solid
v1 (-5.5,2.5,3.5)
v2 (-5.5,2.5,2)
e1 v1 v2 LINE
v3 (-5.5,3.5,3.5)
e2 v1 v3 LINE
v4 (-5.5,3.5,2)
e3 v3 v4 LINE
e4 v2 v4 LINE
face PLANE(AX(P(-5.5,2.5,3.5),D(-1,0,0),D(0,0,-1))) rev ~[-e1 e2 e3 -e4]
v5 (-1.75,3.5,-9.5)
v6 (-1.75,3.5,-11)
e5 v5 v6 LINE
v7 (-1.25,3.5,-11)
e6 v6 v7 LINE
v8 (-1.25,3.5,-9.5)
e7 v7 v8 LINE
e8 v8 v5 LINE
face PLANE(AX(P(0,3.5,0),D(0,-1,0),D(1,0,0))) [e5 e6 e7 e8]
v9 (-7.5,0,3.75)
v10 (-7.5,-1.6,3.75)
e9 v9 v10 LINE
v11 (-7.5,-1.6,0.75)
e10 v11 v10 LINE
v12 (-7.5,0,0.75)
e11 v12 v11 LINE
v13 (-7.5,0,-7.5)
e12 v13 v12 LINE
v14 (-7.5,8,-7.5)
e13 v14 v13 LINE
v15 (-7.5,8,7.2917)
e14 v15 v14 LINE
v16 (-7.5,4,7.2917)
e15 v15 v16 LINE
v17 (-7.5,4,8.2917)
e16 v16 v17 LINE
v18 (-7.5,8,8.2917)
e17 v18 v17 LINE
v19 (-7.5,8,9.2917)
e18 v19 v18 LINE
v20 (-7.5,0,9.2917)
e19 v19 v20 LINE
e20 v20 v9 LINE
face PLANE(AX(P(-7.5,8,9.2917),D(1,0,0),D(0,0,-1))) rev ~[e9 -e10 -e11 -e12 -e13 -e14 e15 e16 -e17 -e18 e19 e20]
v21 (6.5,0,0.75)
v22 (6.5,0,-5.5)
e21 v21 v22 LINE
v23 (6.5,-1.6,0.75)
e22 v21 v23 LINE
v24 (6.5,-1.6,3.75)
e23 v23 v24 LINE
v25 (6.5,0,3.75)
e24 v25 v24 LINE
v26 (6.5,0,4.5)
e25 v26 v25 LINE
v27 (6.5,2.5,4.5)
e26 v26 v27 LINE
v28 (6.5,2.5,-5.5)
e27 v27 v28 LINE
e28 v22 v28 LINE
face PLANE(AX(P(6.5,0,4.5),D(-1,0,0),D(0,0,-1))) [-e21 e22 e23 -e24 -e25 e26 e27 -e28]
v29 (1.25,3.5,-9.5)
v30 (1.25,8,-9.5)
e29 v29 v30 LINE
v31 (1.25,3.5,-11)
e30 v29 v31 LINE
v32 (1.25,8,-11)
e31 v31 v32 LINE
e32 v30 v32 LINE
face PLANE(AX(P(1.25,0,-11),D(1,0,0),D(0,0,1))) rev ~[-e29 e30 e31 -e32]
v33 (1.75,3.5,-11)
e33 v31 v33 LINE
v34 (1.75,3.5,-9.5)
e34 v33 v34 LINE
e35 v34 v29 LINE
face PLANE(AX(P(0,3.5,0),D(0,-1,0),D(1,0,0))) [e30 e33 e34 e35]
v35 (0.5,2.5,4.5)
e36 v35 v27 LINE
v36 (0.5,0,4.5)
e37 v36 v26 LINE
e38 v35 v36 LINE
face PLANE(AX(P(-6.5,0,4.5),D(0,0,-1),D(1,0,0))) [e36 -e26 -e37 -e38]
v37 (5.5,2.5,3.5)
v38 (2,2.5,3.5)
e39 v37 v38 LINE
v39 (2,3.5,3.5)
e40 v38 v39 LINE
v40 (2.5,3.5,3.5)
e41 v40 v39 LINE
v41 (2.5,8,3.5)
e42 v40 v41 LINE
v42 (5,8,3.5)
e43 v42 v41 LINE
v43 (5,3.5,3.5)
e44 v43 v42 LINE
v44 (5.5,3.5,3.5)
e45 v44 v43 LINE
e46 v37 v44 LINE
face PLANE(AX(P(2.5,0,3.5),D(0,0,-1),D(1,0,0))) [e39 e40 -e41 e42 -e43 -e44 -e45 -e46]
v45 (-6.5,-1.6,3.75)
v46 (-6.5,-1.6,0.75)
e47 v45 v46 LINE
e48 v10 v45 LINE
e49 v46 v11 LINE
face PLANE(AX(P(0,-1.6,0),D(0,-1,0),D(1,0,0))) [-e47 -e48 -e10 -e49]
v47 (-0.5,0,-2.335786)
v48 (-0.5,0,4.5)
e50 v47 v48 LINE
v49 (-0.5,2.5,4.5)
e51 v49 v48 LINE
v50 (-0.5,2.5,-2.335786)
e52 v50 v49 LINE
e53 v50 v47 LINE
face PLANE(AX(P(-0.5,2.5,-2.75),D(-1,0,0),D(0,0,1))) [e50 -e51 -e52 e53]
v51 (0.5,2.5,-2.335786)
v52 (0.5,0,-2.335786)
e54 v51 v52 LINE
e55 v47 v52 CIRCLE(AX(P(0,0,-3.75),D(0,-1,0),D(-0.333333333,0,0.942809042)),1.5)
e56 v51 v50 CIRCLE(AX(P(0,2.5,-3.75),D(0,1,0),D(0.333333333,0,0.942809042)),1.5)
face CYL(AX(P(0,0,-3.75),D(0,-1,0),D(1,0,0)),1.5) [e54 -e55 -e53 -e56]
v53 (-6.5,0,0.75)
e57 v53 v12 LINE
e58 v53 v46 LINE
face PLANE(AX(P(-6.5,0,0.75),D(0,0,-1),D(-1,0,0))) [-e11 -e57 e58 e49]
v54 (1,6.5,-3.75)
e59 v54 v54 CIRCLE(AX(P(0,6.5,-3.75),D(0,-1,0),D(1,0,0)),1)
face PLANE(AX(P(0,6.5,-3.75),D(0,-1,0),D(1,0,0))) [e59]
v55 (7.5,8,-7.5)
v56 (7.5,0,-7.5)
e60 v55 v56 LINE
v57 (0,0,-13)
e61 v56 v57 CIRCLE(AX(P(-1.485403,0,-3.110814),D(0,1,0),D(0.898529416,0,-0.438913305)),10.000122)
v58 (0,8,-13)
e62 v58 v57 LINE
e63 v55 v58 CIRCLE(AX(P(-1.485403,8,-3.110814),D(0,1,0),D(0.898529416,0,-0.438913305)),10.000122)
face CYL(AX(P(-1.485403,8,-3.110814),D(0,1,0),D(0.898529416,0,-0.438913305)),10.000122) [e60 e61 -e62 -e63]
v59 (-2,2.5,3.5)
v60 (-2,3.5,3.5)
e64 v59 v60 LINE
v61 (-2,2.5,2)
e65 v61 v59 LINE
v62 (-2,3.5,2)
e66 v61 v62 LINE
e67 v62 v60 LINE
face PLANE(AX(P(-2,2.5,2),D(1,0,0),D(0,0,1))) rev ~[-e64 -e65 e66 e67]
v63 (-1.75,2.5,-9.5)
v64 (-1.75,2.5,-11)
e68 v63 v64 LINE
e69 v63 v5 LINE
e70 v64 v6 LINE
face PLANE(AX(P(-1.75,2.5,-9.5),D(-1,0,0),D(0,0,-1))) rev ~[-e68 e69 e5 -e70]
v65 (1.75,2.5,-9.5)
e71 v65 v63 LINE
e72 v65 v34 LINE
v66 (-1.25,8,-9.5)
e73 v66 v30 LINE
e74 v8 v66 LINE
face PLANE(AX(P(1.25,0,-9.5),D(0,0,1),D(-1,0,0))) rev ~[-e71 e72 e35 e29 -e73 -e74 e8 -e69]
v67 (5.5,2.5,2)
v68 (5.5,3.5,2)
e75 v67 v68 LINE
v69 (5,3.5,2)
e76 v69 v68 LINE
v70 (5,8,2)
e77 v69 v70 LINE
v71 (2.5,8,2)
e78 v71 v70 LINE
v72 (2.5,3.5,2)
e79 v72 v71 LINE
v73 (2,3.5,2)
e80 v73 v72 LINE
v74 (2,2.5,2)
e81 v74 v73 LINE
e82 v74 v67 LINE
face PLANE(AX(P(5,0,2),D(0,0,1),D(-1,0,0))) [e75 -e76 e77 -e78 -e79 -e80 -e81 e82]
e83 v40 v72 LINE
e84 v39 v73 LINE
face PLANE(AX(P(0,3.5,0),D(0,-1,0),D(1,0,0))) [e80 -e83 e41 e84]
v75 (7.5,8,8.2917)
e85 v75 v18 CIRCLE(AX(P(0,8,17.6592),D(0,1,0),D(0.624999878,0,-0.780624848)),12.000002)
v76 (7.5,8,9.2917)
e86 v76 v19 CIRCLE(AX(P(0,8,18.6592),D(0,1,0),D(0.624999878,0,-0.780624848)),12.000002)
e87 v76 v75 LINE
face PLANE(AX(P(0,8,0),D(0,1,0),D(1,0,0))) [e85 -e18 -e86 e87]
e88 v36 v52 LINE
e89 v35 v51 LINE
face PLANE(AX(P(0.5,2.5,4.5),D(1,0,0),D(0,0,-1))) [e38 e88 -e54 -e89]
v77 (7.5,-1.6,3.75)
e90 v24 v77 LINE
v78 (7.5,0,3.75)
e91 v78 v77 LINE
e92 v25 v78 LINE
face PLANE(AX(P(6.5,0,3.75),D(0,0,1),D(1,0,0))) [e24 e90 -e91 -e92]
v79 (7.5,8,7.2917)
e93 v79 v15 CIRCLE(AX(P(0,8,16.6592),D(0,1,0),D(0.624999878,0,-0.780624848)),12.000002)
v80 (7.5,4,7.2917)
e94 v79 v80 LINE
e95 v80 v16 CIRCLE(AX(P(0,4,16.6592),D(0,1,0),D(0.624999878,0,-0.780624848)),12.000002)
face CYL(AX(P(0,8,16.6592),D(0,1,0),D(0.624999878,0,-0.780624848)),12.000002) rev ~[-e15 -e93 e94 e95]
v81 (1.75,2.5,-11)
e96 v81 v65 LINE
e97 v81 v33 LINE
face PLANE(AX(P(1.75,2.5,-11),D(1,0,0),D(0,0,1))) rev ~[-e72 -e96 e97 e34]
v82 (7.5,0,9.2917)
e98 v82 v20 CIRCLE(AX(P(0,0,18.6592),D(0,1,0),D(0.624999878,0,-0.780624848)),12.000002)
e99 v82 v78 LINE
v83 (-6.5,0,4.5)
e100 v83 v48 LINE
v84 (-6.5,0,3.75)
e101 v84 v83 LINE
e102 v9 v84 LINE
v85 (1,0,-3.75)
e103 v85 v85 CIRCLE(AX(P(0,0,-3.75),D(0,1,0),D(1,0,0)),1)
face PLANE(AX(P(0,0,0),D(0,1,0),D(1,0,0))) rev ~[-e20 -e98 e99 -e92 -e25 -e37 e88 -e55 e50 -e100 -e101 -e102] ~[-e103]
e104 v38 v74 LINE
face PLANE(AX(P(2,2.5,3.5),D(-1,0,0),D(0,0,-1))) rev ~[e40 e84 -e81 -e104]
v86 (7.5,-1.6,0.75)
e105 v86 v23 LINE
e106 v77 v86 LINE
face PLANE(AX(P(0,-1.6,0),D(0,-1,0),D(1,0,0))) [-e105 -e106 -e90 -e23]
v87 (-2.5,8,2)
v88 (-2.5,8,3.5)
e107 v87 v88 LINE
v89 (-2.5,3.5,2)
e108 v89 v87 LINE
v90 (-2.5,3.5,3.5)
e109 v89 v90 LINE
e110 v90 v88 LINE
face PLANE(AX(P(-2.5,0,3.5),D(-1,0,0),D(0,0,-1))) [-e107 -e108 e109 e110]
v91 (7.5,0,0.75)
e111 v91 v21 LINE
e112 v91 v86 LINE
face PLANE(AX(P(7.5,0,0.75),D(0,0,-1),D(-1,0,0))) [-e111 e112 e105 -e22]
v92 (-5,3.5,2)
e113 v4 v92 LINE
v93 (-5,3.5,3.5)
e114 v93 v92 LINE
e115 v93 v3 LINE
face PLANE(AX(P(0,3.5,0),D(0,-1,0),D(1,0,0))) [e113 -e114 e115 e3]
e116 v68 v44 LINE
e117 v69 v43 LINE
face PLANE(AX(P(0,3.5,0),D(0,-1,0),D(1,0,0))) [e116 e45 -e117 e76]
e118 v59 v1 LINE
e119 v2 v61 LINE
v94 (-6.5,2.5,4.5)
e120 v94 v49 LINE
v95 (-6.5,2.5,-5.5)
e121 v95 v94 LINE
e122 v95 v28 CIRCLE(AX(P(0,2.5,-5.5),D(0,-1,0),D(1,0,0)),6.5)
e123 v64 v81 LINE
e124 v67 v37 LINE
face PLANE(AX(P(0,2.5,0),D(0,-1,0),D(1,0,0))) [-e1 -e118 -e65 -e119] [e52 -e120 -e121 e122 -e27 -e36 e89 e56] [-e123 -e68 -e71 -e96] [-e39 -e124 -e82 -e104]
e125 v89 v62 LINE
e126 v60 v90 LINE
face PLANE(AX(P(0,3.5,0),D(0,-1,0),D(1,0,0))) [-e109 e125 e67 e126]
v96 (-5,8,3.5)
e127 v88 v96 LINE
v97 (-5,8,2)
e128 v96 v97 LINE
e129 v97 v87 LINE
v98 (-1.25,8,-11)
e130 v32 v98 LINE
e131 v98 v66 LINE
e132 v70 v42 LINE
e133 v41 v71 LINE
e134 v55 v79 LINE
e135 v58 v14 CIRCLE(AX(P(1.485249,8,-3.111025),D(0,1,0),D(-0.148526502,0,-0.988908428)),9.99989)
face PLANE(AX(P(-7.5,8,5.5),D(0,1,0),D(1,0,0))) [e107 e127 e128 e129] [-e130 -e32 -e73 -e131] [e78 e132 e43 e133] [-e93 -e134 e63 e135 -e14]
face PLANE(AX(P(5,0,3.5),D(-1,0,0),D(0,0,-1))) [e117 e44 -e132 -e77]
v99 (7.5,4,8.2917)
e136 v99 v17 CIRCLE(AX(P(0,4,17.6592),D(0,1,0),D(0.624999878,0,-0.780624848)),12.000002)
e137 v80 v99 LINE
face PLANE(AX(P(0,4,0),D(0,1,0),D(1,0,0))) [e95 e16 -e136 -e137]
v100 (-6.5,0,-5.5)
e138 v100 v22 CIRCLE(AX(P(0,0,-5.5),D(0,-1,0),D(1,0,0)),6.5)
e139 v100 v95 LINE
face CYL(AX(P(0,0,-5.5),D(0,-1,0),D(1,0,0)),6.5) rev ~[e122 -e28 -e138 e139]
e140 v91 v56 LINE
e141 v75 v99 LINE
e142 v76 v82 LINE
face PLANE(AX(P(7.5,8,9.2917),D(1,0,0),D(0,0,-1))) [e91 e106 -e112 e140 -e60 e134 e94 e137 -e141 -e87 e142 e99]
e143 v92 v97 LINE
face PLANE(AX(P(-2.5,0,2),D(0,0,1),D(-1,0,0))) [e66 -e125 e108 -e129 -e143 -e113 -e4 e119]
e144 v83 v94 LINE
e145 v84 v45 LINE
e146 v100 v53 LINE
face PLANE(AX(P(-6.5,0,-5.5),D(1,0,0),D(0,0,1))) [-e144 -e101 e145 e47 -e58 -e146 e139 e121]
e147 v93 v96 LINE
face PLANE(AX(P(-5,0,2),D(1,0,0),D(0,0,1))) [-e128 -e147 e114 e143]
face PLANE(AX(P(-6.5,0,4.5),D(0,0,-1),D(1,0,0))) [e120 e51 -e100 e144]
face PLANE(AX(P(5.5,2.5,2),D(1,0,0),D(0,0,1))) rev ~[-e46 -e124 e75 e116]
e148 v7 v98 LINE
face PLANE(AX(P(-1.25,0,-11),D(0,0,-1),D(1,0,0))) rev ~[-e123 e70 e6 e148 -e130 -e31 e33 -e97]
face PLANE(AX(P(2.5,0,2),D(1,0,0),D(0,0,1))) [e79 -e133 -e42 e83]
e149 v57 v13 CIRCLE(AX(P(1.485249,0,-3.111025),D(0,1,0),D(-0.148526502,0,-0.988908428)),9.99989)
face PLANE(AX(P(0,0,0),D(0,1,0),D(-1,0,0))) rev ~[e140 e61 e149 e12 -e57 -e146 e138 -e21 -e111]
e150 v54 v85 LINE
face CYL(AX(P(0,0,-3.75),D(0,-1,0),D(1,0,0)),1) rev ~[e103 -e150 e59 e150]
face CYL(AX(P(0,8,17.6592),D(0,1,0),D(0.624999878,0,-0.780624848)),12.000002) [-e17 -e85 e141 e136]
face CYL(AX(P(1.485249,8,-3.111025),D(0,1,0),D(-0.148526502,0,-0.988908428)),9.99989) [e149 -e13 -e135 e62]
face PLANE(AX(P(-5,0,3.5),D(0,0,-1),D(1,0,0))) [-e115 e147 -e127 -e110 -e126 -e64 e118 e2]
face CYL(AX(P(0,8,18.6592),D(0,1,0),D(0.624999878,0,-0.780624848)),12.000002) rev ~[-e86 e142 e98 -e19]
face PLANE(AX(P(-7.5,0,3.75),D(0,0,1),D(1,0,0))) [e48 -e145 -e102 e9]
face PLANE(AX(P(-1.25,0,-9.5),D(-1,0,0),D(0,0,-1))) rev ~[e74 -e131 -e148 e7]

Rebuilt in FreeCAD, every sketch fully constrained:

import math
import FreeCAD as App
import Part
import Sketcher

V = App.Vector
Q = App.Units.Quantity

doc = App.newDocument("Part")
body = doc.addObject("PartDesign::Body", "Body")

# Sketch on XZ plane
sketch1 = body.newObject("Sketcher::SketchObject", "Sketch")
sketch1.AttachmentSupport = (doc.getObject("XZ_Plane"), [""])
sketch1.MapMode = "FlatFace"
sketch1.addGeometry([
    Part.LineSegment(V(-8, 6, 0), V(8, 6, 0)),
    Part.LineSegment(V(8, 6, 0), V(8, -6, 0)),
    Part.ArcOfCircle(Part.Circle(V(0, -6, 0), V(0, 0, 1), 8), math.radians(180), math.radians(360)),
    Part.LineSegment(V(-8, -6, 0), V(-8, 6, 0)),
], False)
sketch1.addConstraint([
    Sketcher.Constraint("Coincident", 0, 2, 1, 1),
    Sketcher.Constraint("Tangent", 1, 2, 2, 2),
    Sketcher.Constraint("Tangent", 2, 1, 3, 1),
    Sketcher.Constraint("Coincident", 3, 2, 0, 1),
    Sketcher.Constraint("Horizontal", 0),
    Sketcher.Constraint("Vertical", 1),
    Sketcher.Constraint("Vertical", 3),
    Sketcher.Constraint("Symmetric", 0, 2, 2, 1, -1, 1),
    Sketcher.Constraint("Radius", 2, Q("7.5 mm")),
    Sketcher.Constraint("DistanceY", 1, 2, 1, 1, Q("11 mm")),
])
pad1 = body.newObject("PartDesign::Pad", "Pad")
pad1.Profile = sketch1
pad1.Length = 8
pad1.Reversed = True

# Sketch on XZ plane
sketch2 = body.newObject("Sketcher::SketchObject", "Sketch001")
sketch2.AttachmentSupport = (doc.getObject("XZ_Plane"), [""])
sketch2.MapMode = "FlatFace"
sketch2.addGeometry([
    Part.LineSegment(V(-7.5, 3.8, 0), V(-7.5, 0.8, 0)),  # 0
    Part.LineSegment(V(-7.5, 0.8, 0), V(-6.5, 0.8, 0)),  # 1
    Part.LineSegment(V(-6.5, 0.8, 0), V(-6.5, 3.8, 0)),  # 2
    Part.LineSegment(V(-6.5, 3.8, 0), V(-7.5, 3.8, 0)),  # 3
    Part.LineSegment(V(7.5, 0.8, 0), V(7.5, 3.8, 0)),  # 4
    Part.LineSegment(V(7.5, 3.8, 0), V(6.5, 3.8, 0)),  # 5
    Part.LineSegment(V(6.5, 3.8, 0), V(6.5, 0.8, 0)),  # 6
    Part.LineSegment(V(6.5, 0.8, 0), V(7.5, 0.8, 0)),  # 7
], False)
sketch2.addConstraint([
    Sketcher.Constraint("Coincident", 0, 2, 1, 1),
    Sketcher.Constraint("Coincident", 1, 2, 2, 1),
    Sketcher.Constraint("Coincident", 2, 2, 3, 1),
    Sketcher.Constraint("Coincident", 3, 2, 0, 1),
    Sketcher.Constraint("Coincident", 4, 2, 5, 1),
    Sketcher.Constraint("Coincident", 5, 2, 6, 1),
    Sketcher.Constraint("Coincident", 6, 2, 7, 1),
    Sketcher.Constraint("Coincident", 7, 2, 4, 1),
    Sketcher.Constraint("Vertical", 0),
    Sketcher.Constraint("Horizontal", 1),
    Sketcher.Constraint("Vertical", 2),
    Sketcher.Constraint("Horizontal", 3),
    Sketcher.Constraint("Vertical", 4),
    Sketcher.Constraint("Horizontal", 5),
    Sketcher.Constraint("Vertical", 6),
    Sketcher.Constraint("Horizontal", 7),
    Sketcher.Constraint("Symmetric", 3, 2, 4, 2, -2),
    Sketcher.Constraint("Symmetric", 1, 2, 6, 2, -2),
    Sketcher.Constraint("DistanceX", 1, 1, 1, 2, Q("1 mm")),
    Sketcher.Constraint("DistanceY", 0, 2, 0, 1, Q("3 mm")),
    Sketcher.Constraint("DistanceX", 3, 2, 4, 2, Q("15 mm")),
    Sketcher.Constraint("DistanceY", -1, 1, 0, 2, Q("0.75 mm")),
])
pad2 = body.newObject("PartDesign::Pad", "Pad001")
pad2.Profile = sketch2
pad2.Length = 1.6

# Sketch on XZ plane
sketch3 = body.newObject("Sketcher::SketchObject", "Sketch002")
sketch3.AttachmentSupport = (doc.getObject("XZ_Plane"), [""])
sketch3.MapMode = "FlatFace"
sketch3.addGeometry([
    Part.Circle(V(0, -3.8, 0), V(0, 0, 1), 1),  # 0
    Part.LineSegment(V(6.5, 4.5, 0), V(-6.5, 4.5, 0)),  # 1
    Part.LineSegment(V(-6.5, 4.5, 0), V(-6.5, -5.5, 0)),  # 2
    Part.ArcOfCircle(Part.Circle(V(0, -5.5, 0), V(0, 0, 1), 6.5), math.radians(180), math.radians(360)),  # 3
    Part.LineSegment(V(6.5, -5.5, 0), V(6.5, 4.5, 0)),  # 4
    Part.Circle(V(0, -3.8, 0), V(0, 0, 1), 1.5),  # 5
], False)
sketch3.addConstraint([
    Sketcher.Constraint("Coincident", 1, 2, 2, 1),
    Sketcher.Constraint("Tangent", 2, 2, 3, 1),
    Sketcher.Constraint("Tangent", 3, 2, 4, 1),
    Sketcher.Constraint("Coincident", 4, 2, 1, 1),
    Sketcher.Constraint("Horizontal", 1),
    Sketcher.Constraint("Vertical", 2),
    Sketcher.Constraint("Vertical", 4),
    Sketcher.Constraint("Coincident", 5, 3, 0, 3),
    Sketcher.Constraint("PointOnObject", 0, 3, -2),
    Sketcher.Constraint("PointOnObject", 3, 3, -2),
    Sketcher.Constraint("Diameter", 0, Q("2 mm")),
    Sketcher.Constraint("Diameter", 5, Q("3 mm")),
    Sketcher.Constraint("Radius", 3, Q("6.5 mm")),
    Sketcher.Constraint("DistanceY", 2, 2, 2, 1, Q("10 mm")),
    Sketcher.Constraint("DistanceY", 0, 3, -1, 1, Q("3.75 mm")),
    Sketcher.Constraint("DistanceY", 3, 3, -1, 1, Q("5.5 mm")),
])
pocket1 = body.newObject("PartDesign::Pocket", "Pocket")
pocket1.Profile = sketch3
pocket1.Length = 2.5

# Sketch on XZ plane
sketch4 = body.newObject("Sketcher::SketchObject", "Sketch003")
sketch4.AttachmentSupport = (doc.getObject("XZ_Plane"), [""])
sketch4.MapMode = "FlatFace"
sketch4.addGeometry([
    Part.LineSegment(V(-2.5, 3.5, 0), V(-5, 3.5, 0)),  # 0
    Part.LineSegment(V(-5, 3.5, 0), V(-5, 2, 0)),  # 1
    Part.LineSegment(V(-5, 2, 0), V(-2.5, 2, 0)),  # 2
    Part.LineSegment(V(-2.5, 2, 0), V(-2.5, 3.5, 0)),  # 3
    Part.LineSegment(V(5, 3.5, 0), V(2.5, 3.5, 0)),  # 4
    Part.LineSegment(V(2.5, 3.5, 0), V(2.5, 2, 0)),  # 5
    Part.LineSegment(V(2.5, 2, 0), V(5, 2, 0)),  # 6
    Part.LineSegment(V(5, 2, 0), V(5, 3.5, 0)),  # 7
    Part.LineSegment(V(-1.2, -9.5, 0), V(-1.2, -11, 0)),  # 8
    Part.LineSegment(V(-1.2, -11, 0), V(1.2, -11, 0)),  # 9
    Part.LineSegment(V(1.2, -11, 0), V(1.2, -9.5, 0)),  # 10
    Part.LineSegment(V(1.2, -9.5, 0), V(-1.2, -9.5, 0)),  # 11
], False)
sketch4.addConstraint([
    Sketcher.Constraint("Coincident", 0, 2, 1, 1),
    Sketcher.Constraint("Coincident", 1, 2, 2, 1),
    Sketcher.Constraint("Coincident", 2, 2, 3, 1),
    Sketcher.Constraint("Coincident", 3, 2, 0, 1),
    Sketcher.Constraint("Coincident", 4, 2, 5, 1),
    Sketcher.Constraint("Coincident", 5, 2, 6, 1),
    Sketcher.Constraint("Coincident", 6, 2, 7, 1),
    Sketcher.Constraint("Coincident", 7, 2, 4, 1),
    Sketcher.Constraint("Coincident", 8, 2, 9, 1),
    Sketcher.Constraint("Coincident", 9, 2, 10, 1),
    Sketcher.Constraint("Coincident", 10, 2, 11, 1),
    Sketcher.Constraint("Coincident", 11, 2, 8, 1),
    Sketcher.Constraint("Horizontal", 0),
    Sketcher.Constraint("Vertical", 1),
    Sketcher.Constraint("Horizontal", 2),
    Sketcher.Constraint("Vertical", 3),
    Sketcher.Constraint("Horizontal", 4),
    Sketcher.Constraint("Vertical", 5),
    Sketcher.Constraint("Horizontal", 6),
    Sketcher.Constraint("Vertical", 7),
    Sketcher.Constraint("Vertical", 8),
    Sketcher.Constraint("Horizontal", 9),
    Sketcher.Constraint("Vertical", 10),
    Sketcher.Constraint("Horizontal", 11),
    Sketcher.Constraint("Symmetric", 3, 2, 4, 2, -2),
    Sketcher.Constraint("Symmetric", 1, 2, 6, 2, -2),
    Sketcher.Constraint("Equal", 6, 9),
    Sketcher.Constraint("Equal", 7, 8),
    Sketcher.Constraint("DistanceX", 0, 2, 0, 1, Q("2.5 mm")),
    Sketcher.Constraint("DistanceY", 1, 2, 1, 1, Q("1.5 mm")),
    Sketcher.Constraint("DistanceY", 8, 2, 2, 2, Q("13 mm")),
    Sketcher.Constraint("DistanceX", 2, 2, -1, 1, Q("2.5 mm")),
    Sketcher.Constraint("DistanceX", 1, 2, 8, 2, Q("3.75 mm")),
    Sketcher.Constraint("DistanceY", -1, 1, 1, 2, Q("2 mm")),
])
pocket2 = body.newObject("PartDesign::Pocket", "Pocket001")
pocket2.Profile = sketch4
pocket2.Length = 10

# Sketch on XZ plane
sketch5 = body.newObject("Sketcher::SketchObject", "Sketch004")
sketch5.AttachmentSupport = (doc.getObject("XZ_Plane"), [""])
sketch5.MapMode = "FlatFace"
sketch5.AttachmentOffset = App.Placement(V(0, 0, -2.5), App.Rotation())
sketch5.addGeometry([
    Part.LineSegment(V(5.5, 2, 0), V(5.5, 3.5, 0)),  # 0
    Part.LineSegment(V(5.5, 3.5, 0), V(2, 3.5, 0)),  # 1
    Part.LineSegment(V(2, 3.5, 0), V(2, 2, 0)),  # 2
    Part.LineSegment(V(2, 2, 0), V(5.5, 2, 0)),  # 3
    Part.LineSegment(V(1.8, -11, 0), V(1.8, -9.5, 0)),  # 4
    Part.LineSegment(V(1.8, -9.5, 0), V(-1.8, -9.5, 0)),  # 5
    Part.LineSegment(V(-1.8, -9.5, 0), V(-1.8, -11, 0)),  # 6
    Part.LineSegment(V(-1.8, -11, 0), V(1.8, -11, 0)),  # 7
    Part.LineSegment(V(-2, 2, 0), V(-2, 3.5, 0)),  # 8
    Part.LineSegment(V(-2, 3.5, 0), V(-5.5, 3.5, 0)),  # 9
    Part.LineSegment(V(-5.5, 3.5, 0), V(-5.5, 2, 0)),  # 10
    Part.LineSegment(V(-5.5, 2, 0), V(-2, 2, 0)),  # 11
], False)
sketch5.addConstraint([
    Sketcher.Constraint("Coincident", 0, 2, 1, 1),
    Sketcher.Constraint("Coincident", 1, 2, 2, 1),
    Sketcher.Constraint("Coincident", 2, 2, 3, 1),
    Sketcher.Constraint("Coincident", 3, 2, 0, 1),
    Sketcher.Constraint("Coincident", 4, 2, 5, 1),
    Sketcher.Constraint("Coincident", 5, 2, 6, 1),
    Sketcher.Constraint("Coincident", 6, 2, 7, 1),
    Sketcher.Constraint("Coincident", 7, 2, 4, 1),
    Sketcher.Constraint("Coincident", 8, 2, 9, 1),
    Sketcher.Constraint("Coincident", 9, 2, 10, 1),
    Sketcher.Constraint("Coincident", 10, 2, 11, 1),
    Sketcher.Constraint("Coincident", 11, 2, 8, 1),
    Sketcher.Constraint("Vertical", 0),
    Sketcher.Constraint("Horizontal", 1),
    Sketcher.Constraint("Vertical", 2),
    Sketcher.Constraint("Horizontal", 3),
    Sketcher.Constraint("Vertical", 4),
    Sketcher.Constraint("Horizontal", 5),
    Sketcher.Constraint("Vertical", 6),
    Sketcher.Constraint("Horizontal", 7),
    Sketcher.Constraint("Vertical", 8),
    Sketcher.Constraint("Horizontal", 9),
    Sketcher.Constraint("Vertical", 10),
    Sketcher.Constraint("Horizontal", 11),
    Sketcher.Constraint("Symmetric", 1, 2, 8, 2, -2),
    Sketcher.Constraint("Symmetric", 3, 2, 10, 2, -2),
    Sketcher.Constraint("Equal", 3, 5),
    Sketcher.Constraint("Equal", 2, 4),
    Sketcher.Constraint("DistanceX", 1, 2, 1, 1, Q("3.5 mm")),
    Sketcher.Constraint("DistanceY", 0, 1, 0, 2, Q("1.5 mm")),
    Sketcher.Constraint("DistanceX", -1, 1, 1, 2, Q("2 mm")),
    Sketcher.Constraint("DistanceY", -1, 1, 2, 2, Q("2 mm")),
    Sketcher.Constraint("DistanceY", 6, 2, -1, 1, Q("11 mm")),
    Sketcher.Constraint("DistanceX", -1, 1, 4, 2, Q("1.75 mm")),
])
pocket3 = body.newObject("PartDesign::Pocket", "Pocket002")
pocket3.Profile = sketch5
pocket3.Length = 1

# Sketch on XZ plane
sketch6 = body.newObject("Sketcher::SketchObject", "Sketch005")
sketch6.AttachmentSupport = (doc.getObject("XZ_Plane"), [""])
sketch6.MapMode = "FlatFace"
sketch6.AttachmentOffset = App.Placement(V(0, 0, -2.5), App.Rotation())
sketch6.addGeometry([
    Part.LineSegment(V(0.5, 4.5, 0), V(-0.5, 4.5, 0)),
    Part.LineSegment(V(-0.5, 4.5, 0), V(-0.5, -2.8, 0)),
    Part.LineSegment(V(-0.5, -2.8, 0), V(0.5, -2.8, 0)),
    Part.LineSegment(V(0.5, -2.8, 0), V(0.5, 4.5, 0)),
], False)
sketch6.addConstraint([
    Sketcher.Constraint("Coincident", 0, 2, 1, 1),
    Sketcher.Constraint("Coincident", 1, 2, 2, 1),
    Sketcher.Constraint("Coincident", 2, 2, 3, 1),
    Sketcher.Constraint("Coincident", 3, 2, 0, 1),
    Sketcher.Constraint("Horizontal", 0),
    Sketcher.Constraint("Vertical", 1),
    Sketcher.Constraint("Horizontal", 2),
    Sketcher.Constraint("Vertical", 3),
    Sketcher.Constraint("DistanceX", 0, 2, 0, 1, Q("1 mm")),
    Sketcher.Constraint("DistanceY", 1, 2, 1, 1, Q("7.25 mm")),
    Sketcher.Constraint("DistanceX", 0, 2, -1, 1, Q("0.5 mm")),
    Sketcher.Constraint("DistanceY", -1, 1, 0, 2, Q("4.5 mm")),
])
pad3 = body.newObject("PartDesign::Pad", "Pad002")
pad3.Profile = sketch6
pad3.Length = 2.5

# Sketch on XY plane
sketch7 = body.newObject("Sketcher::SketchObject", "Sketch006")
sketch7.AttachmentSupport = (doc.getObject("XY_Plane"), [""])
sketch7.MapMode = "FlatFace"
sketch7.AttachmentOffset = App.Placement(V(0, 0, 5.5), App.Rotation())
sketch7.addGeometry([
    Part.LineSegment(V(-8, 0, 0), V(8, 0, 0)),
    Part.LineSegment(V(8, 0, 0), V(8, 8, 0)),
    Part.LineSegment(V(8, 8, 0), V(-8, 8, 0)),
    Part.LineSegment(V(-8, 8, 0), V(-8, 0, 0)),
], False)
sketch7.addConstraint([
    Sketcher.Constraint("Coincident", 0, 2, 1, 1),
    Sketcher.Constraint("Coincident", 1, 2, 2, 1),
    Sketcher.Constraint("Coincident", 2, 2, 3, 1),
    Sketcher.Constraint("Coincident", 3, 2, 0, 1),
    Sketcher.Constraint("Horizontal", 0),
    Sketcher.Constraint("Vertical", 1),
    Sketcher.Constraint("Horizontal", 2),
    Sketcher.Constraint("Vertical", 3),
    Sketcher.Constraint("Symmetric", 0, 2, 3, 2, -1, 1),
    Sketcher.Constraint("DistanceX", 0, 1, 0, 2, Q("15 mm")),
    Sketcher.Constraint("DistanceY", 1, 1, 1, 2, Q("8 mm")),
])
pad4 = body.newObject("PartDesign::Pad", "Pad003")
pad4.Profile = sketch7
pad4.Length = 6

# Sketch on XZ plane
sketch8 = body.newObject("Sketcher::SketchObject", "Sketch007")
sketch8.AttachmentSupport = (doc.getObject("XZ_Plane"), [""])
sketch8.MapMode = "FlatFace"
sketch8.AttachmentOffset = App.Placement(V(0, 0, -8), App.Rotation())
sketch8.addGeometry([
    Part.ArcOfCircle(Part.Circle(V(0, 18, 0), V(0, 0, 1), 12), math.radians(-129), math.radians(-51)),
    Part.LineSegment(V(-8, 8, 0), V(-8, 18, 0)),
    Part.LineSegment(V(-8, 18, 0), V(8, 18, 0)),
    Part.LineSegment(V(8, 18, 0), V(8, 8, 0)),
], False)
sketch8.addConstraint([
    Sketcher.Constraint("Coincident", 0, 1, 1, 1),
    Sketcher.Constraint("Coincident", 1, 2, 2, 1),
    Sketcher.Constraint("Coincident", 2, 2, 3, 1),
    Sketcher.Constraint("Coincident", 3, 2, 0, 2),
    Sketcher.Constraint("Vertical", 1),
    Sketcher.Constraint("Horizontal", 2),
    Sketcher.Constraint("Symmetric", 0, 1, 3, 2, -2),
    Sketcher.Constraint("Radius", 0, Q("12 mm")),
    Sketcher.Constraint("DistanceX", 0, 1, 3, 2, Q("15 mm")),
    Sketcher.Constraint("Distance", 3, Q("9.603 mm")),
    Sketcher.Constraint("DistanceX", 2, 1, 2, 2, Q("15.7387 mm")),
    Sketcher.Constraint("DistanceY", -1, 1, 0, 3, Q("17.6592 mm")),
])
pocket4 = body.newObject("PartDesign::Pocket", "Pocket003")
pocket4.Profile = sketch8
pocket4.Length = 8
pocket4.Reversed = True

# Sketch on XZ plane
sketch9 = body.newObject("Sketcher::SketchObject", "Sketch008")
sketch9.AttachmentSupport = (doc.getObject("XZ_Plane"), [""])
sketch9.MapMode = "FlatFace"
sketch9.AttachmentOffset = App.Placement(V(0, 0, -8), App.Rotation())
sketch9.addGeometry([
    Part.LineSegment(V(3.9, -13.1, 0), V(3.9, -11.9, 0)),  # 0
    Part.ArcOfCircle(Part.Circle(V(0, -5.5, 0), V(0, 0, 1), 7.5), math.radians(-59), math.radians(0)),  # 1
    Part.LineSegment(V(7.5, -5.5, 0), V(7.5, -13.1, 0)),  # 2
    Part.LineSegment(V(7.5, -13.1, 0), V(3.9, -13.1, 0)),  # 3
    Part.LineSegment(V(-7.5, -13.5, 0), V(-7.5, -5.5, 0)),  # 4
    Part.ArcOfCircle(Part.Circle(V(0, -5.5, 0), V(0, 0, 1), 7.5), math.radians(180), math.radians(233)),  # 5
    Part.LineSegment(V(-4.6, -11.5, 0), V(-4.6, -13.5, 0)),  # 6
    Part.LineSegment(V(-4.6, -13.5, 0), V(-7.5, -13.5, 0)),  # 7
], False)
sketch9.addConstraint([
    Sketcher.Constraint("Coincident", 0, 2, 1, 1),
    Sketcher.Constraint("Tangent", 1, 2, 2, 1),
    Sketcher.Constraint("Coincident", 2, 2, 3, 1),
    Sketcher.Constraint("Coincident", 3, 2, 0, 1),
    Sketcher.Constraint("Tangent", 4, 2, 5, 1),
    Sketcher.Constraint("Coincident", 5, 2, 6, 1),
    Sketcher.Constraint("Coincident", 6, 2, 7, 1),
    Sketcher.Constraint("Coincident", 7, 2, 4, 1),
    Sketcher.Constraint("Vertical", 0),
    Sketcher.Constraint("Vertical", 2),
    Sketcher.Constraint("Horizontal", 3),
    Sketcher.Constraint("Vertical", 4),
    Sketcher.Constraint("Vertical", 6),
    Sketcher.Constraint("Horizontal", 7),
    Sketcher.Constraint("Coincident", 5, 3, 1, 3),
    Sketcher.Constraint("Equal", 1, 5),
    Sketcher.Constraint("PointOnObject", 1, 3, -2),
    Sketcher.Constraint("Radius", 1, Q("7.5 mm")),
    Sketcher.Constraint("DistanceY", 1, 3, -1, 1, Q("5.5 mm")),
    Sketcher.Constraint("DistanceY", 0, 1, 0, 2, Q("1.187 mm")),
    Sketcher.Constraint("DistanceY", 3, 2, 5, 2, Q("1.66 mm")),
    Sketcher.Constraint("DistanceX", 3, 2, 3, 1, Q("3.6368 mm")),
    Sketcher.Constraint("DistanceY", 4, 1, 4, 2, Q("7.9633 mm")),
])
pad5 = body.newObject("PartDesign::Pad", "Pad004")
pad5.Profile = sketch9
pad5.Length = 8

# Sketch on XZ plane
sketch10 = body.newObject("Sketcher::SketchObject", "Sketch009")
sketch10.AttachmentSupport = (doc.getObject("XZ_Plane"), [""])
sketch10.MapMode = "FlatFace"
sketch10.AttachmentOffset = App.Placement(V(0, 0, -8), App.Rotation())
sketch10.addGeometry([
    Part.ArcOfCircle(Part.Circle(V(-1, -3, 0), V(0, 0, 1), 10), math.radians(-81), math.radians(-26)),  # 0
    Part.LineSegment(V(8, -8, 0), V(8, -19, 0)),  # 1
    Part.LineSegment(V(8, -19, 0), V(-8, -19, 0)),  # 2
    Part.LineSegment(V(-8, -19, 0), V(-8, -8, 0)),  # 3
    Part.ArcOfCircle(Part.Circle(V(1, -3, 0), V(0, 0, 1), 10), math.radians(-154), math.radians(-99)),  # 4
], False)
sketch10.addConstraint([
    Sketcher.Constraint("Coincident", 0, 2, 1, 1),
    Sketcher.Constraint("Coincident", 1, 2, 2, 1),
    Sketcher.Constraint("Coincident", 2, 2, 3, 1),
    Sketcher.Constraint("Coincident", 3, 2, 4, 1),
    Sketcher.Constraint("Coincident", 4, 2, 0, 1),
    Sketcher.Constraint("Vertical", 1),
    Sketcher.Constraint("Horizontal", 2),
    Sketcher.Constraint("Vertical", 3),
    Sketcher.Constraint("Equal", 0, 4),
    Sketcher.Constraint("Symmetric", 0, 3, 4, 3, -2),
    Sketcher.Constraint("Horizontal", 0, 2, 3, 2),
    Sketcher.Constraint("Radius", 0, Q("10 mm")),
    Sketcher.Constraint("DistanceX", 2, 2, 2, 1, Q("15 mm")),
    Sketcher.Constraint("DistanceY", 4, 2, -1, 1, Q("13 mm")),
    Sketcher.Constraint("DistanceY", 0, 2, -1, 1, Q("7.5 mm")),
    Sketcher.Constraint("DistanceY", 1, 2, 1, 1, Q("11.8065 mm")),
])
pocket5 = body.newObject("PartDesign::Pocket", "Pocket004")
pocket5.Profile = sketch10
pocket5.Length = 10
pocket5.Reversed = True

# Sketch on XZ plane
sketch11 = body.newObject("Sketcher::SketchObject", "Sketch010")
sketch11.AttachmentSupport = (doc.getObject("XZ_Plane"), [""])
sketch11.MapMode = "FlatFace"
sketch11.AttachmentOffset = App.Placement(V(0, 0, -8), App.Rotation())
sketch11.addGeometry([
    Part.LineSegment(V(7.5, 8.3, 0), V(7.5, 7.3, 0)),
    Part.ArcOfCircle(Part.Circle(V(0, 16.7, 0), V(0, 0, 1), 12), math.radians(-129), math.radians(-51)),
    Part.LineSegment(V(-7.5, 7.3, 0), V(-7.5, 8.3, 0)),
    Part.ArcOfCircle(Part.Circle(V(0, 17.7, 0), V(0, 0, 1), 12), math.radians(-129), math.radians(-51)),
], False)
sketch11.addConstraint([
    Sketcher.Constraint("Coincident", 0, 2, 1, 2),
    Sketcher.Constraint("Coincident", 1, 1, 2, 1),
    Sketcher.Constraint("Coincident", 2, 2, 3, 1),
    Sketcher.Constraint("Coincident", 3, 2, 0, 1),
    Sketcher.Constraint("Vertical", 0),
    Sketcher.Constraint("Vertical", 2),
    Sketcher.Constraint("Equal", 1, 3),
    Sketcher.Constraint("Symmetric", 0, 2, 1, 1, -2),
    Sketcher.Constraint("PointOnObject", 3, 3, -2),
    Sketcher.Constraint("DistanceY", 0, 2, 0, 1, Q("1 mm")),
    Sketcher.Constraint("Radius", 1, Q("12 mm")),
    Sketcher.Constraint("DistanceX", 1, 1, 0, 2, Q("15 mm")),
    Sketcher.Constraint("DistanceY", -1, 1, 1, 3, Q("16.6592 mm")),
])
pocket6 = body.newObject("PartDesign::Pocket", "Pocket005")
pocket6.Profile = sketch11
pocket6.Length = 4
pocket6.Reversed = True

# Sketch on XZ plane
sketch12 = body.newObject("Sketcher::SketchObject", "Sketch011")
sketch12.AttachmentSupport = (doc.getObject("XZ_Plane"), [""])
sketch12.MapMode = "FlatFace"
sketch12.AttachmentOffset = App.Placement(V(0, 0, -8), App.Rotation())
sketch12.addGeometry([
    Part.LineSegment(V(7.5, 9.3, 0), V(7.5, 8.3, 0)),
    Part.ArcOfCircle(Part.Circle(V(0, 17.7, 0), V(0, 0, 1), 12), math.radians(-129), math.radians(-51)),
    Part.LineSegment(V(-7.5, 8.3, 0), V(-7.5, 9.3, 0)),
    Part.ArcOfCircle(Part.Circle(V(0, 18.7, 0), V(0, 0, 1), 12), math.radians(-129), math.radians(-51)),
], False)
sketch12.addConstraint([
    Sketcher.Constraint("Coincident", 0, 2, 1, 2),
    Sketcher.Constraint("Coincident", 1, 1, 2, 1),
    Sketcher.Constraint("Coincident", 2, 2, 3, 1),
    Sketcher.Constraint("Coincident", 3, 2, 0, 1),
    Sketcher.Constraint("Vertical", 0),
    Sketcher.Constraint("Vertical", 2),
    Sketcher.Constraint("Equal", 1, 3),
    Sketcher.Constraint("Symmetric", 0, 2, 1, 1, -2),
    Sketcher.Constraint("PointOnObject", 3, 3, -2),
    Sketcher.Constraint("DistanceY", 0, 2, 0, 1, Q("1 mm")),
    Sketcher.Constraint("Radius", 1, Q("12 mm")),
    Sketcher.Constraint("DistanceX", 1, 1, 0, 2, Q("15 mm")),
    Sketcher.Constraint("DistanceY", -1, 1, 1, 3, Q("17.6592 mm")),
])
pad6 = body.newObject("PartDesign::Pad", "Pad005")
pad6.Profile = sketch12
pad6.Length = 8

# Sketch on XZ plane
sketch13 = body.newObject("Sketcher::SketchObject", "Sketch012")
sketch13.AttachmentSupport = (doc.getObject("XZ_Plane"), [""])
sketch13.MapMode = "FlatFace"
sketch13.AttachmentOffset = App.Placement(V(0, 0, -2.5), App.Rotation())
sketch13.addGeometry(Part.Circle(V(0, -3.8, 0), V(0, 0, 1), 1), False)
sketch13.addConstraint([
    Sketcher.Constraint("PointOnObject", 0, 3, -2),
    Sketcher.Constraint("Diameter", 0, Q("2 mm")),
    Sketcher.Constraint("DistanceY", 0, 3, -1, 1, Q("3.75 mm")),
])
pocket7 = body.newObject("PartDesign::Pocket", "Pocket006")
pocket7.Profile = sketch13
pocket7.Length = 4

doc.recompute()
